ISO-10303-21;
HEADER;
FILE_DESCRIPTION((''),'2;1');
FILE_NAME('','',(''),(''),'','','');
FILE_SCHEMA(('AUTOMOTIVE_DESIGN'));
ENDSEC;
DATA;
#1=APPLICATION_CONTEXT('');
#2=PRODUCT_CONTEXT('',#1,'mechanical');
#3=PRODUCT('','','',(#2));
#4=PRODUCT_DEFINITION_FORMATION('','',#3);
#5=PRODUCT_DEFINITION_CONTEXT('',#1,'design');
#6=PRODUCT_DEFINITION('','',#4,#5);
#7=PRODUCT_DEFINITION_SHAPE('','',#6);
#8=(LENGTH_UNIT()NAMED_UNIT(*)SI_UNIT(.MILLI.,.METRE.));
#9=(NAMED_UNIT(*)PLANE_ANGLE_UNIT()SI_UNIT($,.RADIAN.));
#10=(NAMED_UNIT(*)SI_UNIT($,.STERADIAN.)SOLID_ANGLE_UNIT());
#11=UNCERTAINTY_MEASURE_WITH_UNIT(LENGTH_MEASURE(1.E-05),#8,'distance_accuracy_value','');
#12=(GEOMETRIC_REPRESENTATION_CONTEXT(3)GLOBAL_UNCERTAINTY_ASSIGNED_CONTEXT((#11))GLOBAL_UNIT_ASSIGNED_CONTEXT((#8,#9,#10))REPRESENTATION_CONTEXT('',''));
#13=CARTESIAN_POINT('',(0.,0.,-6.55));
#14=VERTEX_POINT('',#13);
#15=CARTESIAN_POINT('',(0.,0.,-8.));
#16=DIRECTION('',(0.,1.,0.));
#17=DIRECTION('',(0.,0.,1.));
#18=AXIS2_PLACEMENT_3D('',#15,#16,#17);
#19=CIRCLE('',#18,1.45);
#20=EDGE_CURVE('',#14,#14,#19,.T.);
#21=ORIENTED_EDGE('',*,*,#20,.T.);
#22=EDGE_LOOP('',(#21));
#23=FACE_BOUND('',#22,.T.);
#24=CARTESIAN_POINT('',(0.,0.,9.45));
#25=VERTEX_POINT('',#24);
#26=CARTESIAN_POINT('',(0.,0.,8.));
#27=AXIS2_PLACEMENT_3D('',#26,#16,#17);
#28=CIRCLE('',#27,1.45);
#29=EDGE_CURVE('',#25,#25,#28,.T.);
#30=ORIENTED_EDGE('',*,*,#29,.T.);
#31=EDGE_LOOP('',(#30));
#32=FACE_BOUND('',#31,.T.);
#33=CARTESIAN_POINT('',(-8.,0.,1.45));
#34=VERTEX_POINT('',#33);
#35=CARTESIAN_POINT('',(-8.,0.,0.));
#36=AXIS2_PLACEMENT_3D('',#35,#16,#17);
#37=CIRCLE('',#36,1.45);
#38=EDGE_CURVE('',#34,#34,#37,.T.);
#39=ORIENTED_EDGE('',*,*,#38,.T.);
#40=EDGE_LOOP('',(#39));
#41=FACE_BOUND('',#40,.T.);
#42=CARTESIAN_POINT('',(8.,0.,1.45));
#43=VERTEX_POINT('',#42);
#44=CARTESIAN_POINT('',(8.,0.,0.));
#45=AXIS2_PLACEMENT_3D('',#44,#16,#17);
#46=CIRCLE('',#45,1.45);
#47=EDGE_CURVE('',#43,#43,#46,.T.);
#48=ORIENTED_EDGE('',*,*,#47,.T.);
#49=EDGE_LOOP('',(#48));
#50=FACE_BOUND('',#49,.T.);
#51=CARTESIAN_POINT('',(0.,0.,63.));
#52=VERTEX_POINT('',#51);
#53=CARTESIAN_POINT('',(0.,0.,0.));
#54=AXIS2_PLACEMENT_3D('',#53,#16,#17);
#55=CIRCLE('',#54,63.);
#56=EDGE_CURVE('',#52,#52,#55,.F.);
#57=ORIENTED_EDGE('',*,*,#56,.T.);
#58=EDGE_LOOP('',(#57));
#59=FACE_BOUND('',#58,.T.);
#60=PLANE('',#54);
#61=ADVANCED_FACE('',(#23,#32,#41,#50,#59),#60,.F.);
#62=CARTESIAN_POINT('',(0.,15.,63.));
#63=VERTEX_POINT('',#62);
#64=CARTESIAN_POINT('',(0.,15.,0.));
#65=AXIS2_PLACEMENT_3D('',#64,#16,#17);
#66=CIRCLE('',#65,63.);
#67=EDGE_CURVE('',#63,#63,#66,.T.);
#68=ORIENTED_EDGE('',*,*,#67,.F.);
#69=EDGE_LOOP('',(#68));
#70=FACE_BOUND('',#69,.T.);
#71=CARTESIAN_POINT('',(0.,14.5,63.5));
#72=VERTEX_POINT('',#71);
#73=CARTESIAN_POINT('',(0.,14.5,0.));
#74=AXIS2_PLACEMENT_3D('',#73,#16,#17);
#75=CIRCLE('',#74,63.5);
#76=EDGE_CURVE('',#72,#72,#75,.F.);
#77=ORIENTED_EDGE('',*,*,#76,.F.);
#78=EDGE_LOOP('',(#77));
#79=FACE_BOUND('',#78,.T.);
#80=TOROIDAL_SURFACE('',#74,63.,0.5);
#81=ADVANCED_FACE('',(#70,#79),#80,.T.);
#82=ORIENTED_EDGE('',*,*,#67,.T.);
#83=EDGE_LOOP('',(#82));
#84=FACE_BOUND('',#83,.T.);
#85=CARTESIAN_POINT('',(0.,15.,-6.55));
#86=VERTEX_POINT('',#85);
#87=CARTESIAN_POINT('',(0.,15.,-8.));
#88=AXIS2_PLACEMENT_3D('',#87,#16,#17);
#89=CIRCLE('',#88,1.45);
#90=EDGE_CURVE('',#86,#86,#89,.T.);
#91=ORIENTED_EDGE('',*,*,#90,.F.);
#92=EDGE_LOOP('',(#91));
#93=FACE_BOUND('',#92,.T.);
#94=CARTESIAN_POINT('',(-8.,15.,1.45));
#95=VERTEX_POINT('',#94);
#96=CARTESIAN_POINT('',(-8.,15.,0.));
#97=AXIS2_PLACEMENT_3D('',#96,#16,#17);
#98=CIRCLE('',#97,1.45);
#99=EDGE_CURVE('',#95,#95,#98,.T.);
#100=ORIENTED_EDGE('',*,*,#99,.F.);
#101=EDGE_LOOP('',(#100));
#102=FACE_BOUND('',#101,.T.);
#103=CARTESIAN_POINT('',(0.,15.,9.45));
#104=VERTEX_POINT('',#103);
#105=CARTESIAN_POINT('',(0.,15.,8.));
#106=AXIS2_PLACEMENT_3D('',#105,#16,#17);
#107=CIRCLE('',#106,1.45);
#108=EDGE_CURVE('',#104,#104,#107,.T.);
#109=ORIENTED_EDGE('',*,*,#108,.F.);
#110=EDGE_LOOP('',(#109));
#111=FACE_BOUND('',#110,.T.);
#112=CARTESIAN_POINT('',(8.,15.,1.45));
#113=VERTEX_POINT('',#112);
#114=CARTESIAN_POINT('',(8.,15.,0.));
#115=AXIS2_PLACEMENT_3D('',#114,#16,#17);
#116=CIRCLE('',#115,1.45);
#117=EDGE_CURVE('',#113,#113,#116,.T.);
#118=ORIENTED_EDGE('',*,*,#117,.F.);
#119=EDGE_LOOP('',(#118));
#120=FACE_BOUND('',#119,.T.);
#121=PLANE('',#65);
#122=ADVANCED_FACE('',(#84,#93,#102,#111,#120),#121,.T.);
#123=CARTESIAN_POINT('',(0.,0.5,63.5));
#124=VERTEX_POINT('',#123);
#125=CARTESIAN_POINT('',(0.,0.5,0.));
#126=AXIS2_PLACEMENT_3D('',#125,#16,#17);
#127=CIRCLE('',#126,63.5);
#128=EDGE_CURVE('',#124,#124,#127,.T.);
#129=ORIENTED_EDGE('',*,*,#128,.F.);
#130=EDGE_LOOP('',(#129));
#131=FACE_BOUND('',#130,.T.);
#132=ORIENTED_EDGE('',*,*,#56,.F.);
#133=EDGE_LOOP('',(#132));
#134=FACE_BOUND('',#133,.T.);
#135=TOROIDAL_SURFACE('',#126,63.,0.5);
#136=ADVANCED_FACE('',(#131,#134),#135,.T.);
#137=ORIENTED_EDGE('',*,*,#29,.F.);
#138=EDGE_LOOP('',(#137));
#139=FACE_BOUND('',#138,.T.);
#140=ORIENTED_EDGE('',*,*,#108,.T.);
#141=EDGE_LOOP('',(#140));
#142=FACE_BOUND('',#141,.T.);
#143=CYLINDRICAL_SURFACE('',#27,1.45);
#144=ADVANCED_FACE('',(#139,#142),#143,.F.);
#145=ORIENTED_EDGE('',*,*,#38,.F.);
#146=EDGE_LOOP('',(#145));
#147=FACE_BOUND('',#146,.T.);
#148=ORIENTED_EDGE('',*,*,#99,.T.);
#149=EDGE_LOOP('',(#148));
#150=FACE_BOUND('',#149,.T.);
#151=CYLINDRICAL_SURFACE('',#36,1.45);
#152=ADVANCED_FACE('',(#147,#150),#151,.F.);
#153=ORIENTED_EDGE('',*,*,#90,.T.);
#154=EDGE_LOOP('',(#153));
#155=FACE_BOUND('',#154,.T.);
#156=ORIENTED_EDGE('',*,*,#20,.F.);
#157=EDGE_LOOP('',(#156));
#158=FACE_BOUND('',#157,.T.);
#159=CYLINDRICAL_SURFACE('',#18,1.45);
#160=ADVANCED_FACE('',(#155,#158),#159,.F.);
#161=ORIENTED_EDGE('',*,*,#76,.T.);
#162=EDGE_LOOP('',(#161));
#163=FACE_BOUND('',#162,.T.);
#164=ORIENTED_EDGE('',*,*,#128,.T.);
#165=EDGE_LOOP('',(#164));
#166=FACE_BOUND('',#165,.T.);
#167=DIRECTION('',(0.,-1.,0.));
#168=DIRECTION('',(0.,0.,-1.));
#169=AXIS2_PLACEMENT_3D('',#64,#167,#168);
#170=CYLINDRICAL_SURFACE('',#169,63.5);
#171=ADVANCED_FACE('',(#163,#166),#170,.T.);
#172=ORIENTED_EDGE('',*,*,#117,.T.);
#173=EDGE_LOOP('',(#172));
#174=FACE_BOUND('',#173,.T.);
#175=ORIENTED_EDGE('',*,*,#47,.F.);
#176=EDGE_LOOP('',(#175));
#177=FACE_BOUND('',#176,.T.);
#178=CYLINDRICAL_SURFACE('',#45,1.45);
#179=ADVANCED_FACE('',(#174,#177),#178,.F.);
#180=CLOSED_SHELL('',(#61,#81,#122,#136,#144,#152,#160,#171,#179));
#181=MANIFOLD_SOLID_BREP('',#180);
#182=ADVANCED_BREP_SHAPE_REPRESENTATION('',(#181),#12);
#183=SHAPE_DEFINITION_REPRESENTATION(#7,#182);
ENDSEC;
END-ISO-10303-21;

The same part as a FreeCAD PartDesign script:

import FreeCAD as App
import Part
import Sketcher

V = App.Vector
Q = App.Units.Quantity


def edges_at(feature, points):
    """Names of the edges that pass closest to the given points."""
    edges = feature.Shape.Edges
    near = lambda p: min(range(len(edges)), key=lambda i: edges[i].distToShape(Part.Vertex(*p))[0])
    return sorted({f"Edge{near(p) + 1}" for p in points})

doc = App.newDocument("Part")
params = doc.addObject("Spreadsheet::Sheet", "Params")
for row, (alias, value) in enumerate([
    ("sketch1_diameter", "127 mm"),
    ("pad1_length", "15 mm"),
    ("sketch2_diameter", "2.9 mm"),
    ("fillet_radius", "0.5 mm"),
], start=1):
    params.set(f"A{row}", alias)
    params.set(f"B{row}", "=" + value)
    params.setAlias(f"B{row}", alias)

body = doc.addObject("PartDesign::Body", "Body")

sketch1 = doc.addObject("Sketcher::SketchObject", "Sketch")
body.addObject(sketch1)
sketch1.AttachmentSupport = (doc.XZ_Plane, [""])
sketch1.MapMode = "FlatFace"
sketch1.addGeometry(Part.Circle(V(0, 0, 0), V(0, 0, 1), 64), False)
sketch1.addConstraint(Sketcher.Constraint("Coincident", 0, 3, -1, 1))
sketch1.addConstraint(Sketcher.Constraint("Diameter", 0, Q("127 mm")))
sketch1.setExpression("Constraints[1]", "Params.sketch1_diameter")
pad1 = doc.addObject("PartDesign::Pad", "Pad")
body.addObject(pad1)
pad1.Profile = sketch1
pad1.setExpression("Length", "Params.pad1_length")
pad1.Reversed = True

sketch2 = doc.addObject("Sketcher::SketchObject", "Sketch001")
body.addObject(sketch2)
sketch2.AttachmentSupport = (doc.XZ_Plane, [""])
sketch2.MapMode = "FlatFace"
sketch2.AttachmentOffset = App.Placement(V(0, 0, -15), App.Rotation())
sketch2.addGeometry(Part.Circle(V(0, -8, 0), V(0, 0, 1), 1.4), False)
sketch2.addGeometry(Part.Circle(V(8, 0, 0), V(0, 0, 1), 1.4), False)
sketch2.addGeometry(Part.Circle(V(0, 8, 0), V(0, 0, 1), 1.4), False)
sketch2.addGeometry(Part.Circle(V(-8, 0, 0), V(0, 0, 1), 1.4), False)
sketch2.addConstraint(Sketcher.Constraint("Equal", 0, 1))
sketch2.addConstraint(Sketcher.Constraint("Equal", 1, 2))
sketch2.addConstraint(Sketcher.Constraint("Equal", 2, 3))
sketch2.addConstraint(Sketcher.Constraint("Symmetric", 0, 3, 2, 3, -1, 1))
sketch2.addConstraint(Sketcher.Constraint("Symmetric", 1, 3, 3, 3, -1, 1))
sketch2.addConstraint(Sketcher.Constraint("PointOnObject", 0, 3, -2))
sketch2.addConstraint(Sketcher.Constraint("PointOnObject", 1, 3, -1))
sketch2.addConstraint(Sketcher.Constraint("Diameter", 0, Q("2.9 mm")))
sketch2.addConstraint(Sketcher.Constraint("DistanceY", 0, 3, -1, 1, Q("8 mm")))
sketch2.addConstraint(Sketcher.Constraint("DistanceX", -1, 1, 1, 3, Q("8 mm")))
sketch2.setExpression("Constraints[7]", "Params.sketch2_diameter")
pocket1 = doc.addObject("PartDesign::Pocket", "Pocket")
body.addObject(pocket1)
pocket1.Profile = sketch2
pocket1.Type = "ThroughAll"
pocket1.Reversed = True
doc.recompute()

fillet = doc.addObject("PartDesign::Fillet", "Fillet")
body.addObject(fillet)
fillet.Base = (pocket1, edges_at(pocket1, [(0, 0, -63.5), (0, 15, -63.5)]))
fillet.setExpression("Radius", "Params.fillet_radius")

doc.recompute()
